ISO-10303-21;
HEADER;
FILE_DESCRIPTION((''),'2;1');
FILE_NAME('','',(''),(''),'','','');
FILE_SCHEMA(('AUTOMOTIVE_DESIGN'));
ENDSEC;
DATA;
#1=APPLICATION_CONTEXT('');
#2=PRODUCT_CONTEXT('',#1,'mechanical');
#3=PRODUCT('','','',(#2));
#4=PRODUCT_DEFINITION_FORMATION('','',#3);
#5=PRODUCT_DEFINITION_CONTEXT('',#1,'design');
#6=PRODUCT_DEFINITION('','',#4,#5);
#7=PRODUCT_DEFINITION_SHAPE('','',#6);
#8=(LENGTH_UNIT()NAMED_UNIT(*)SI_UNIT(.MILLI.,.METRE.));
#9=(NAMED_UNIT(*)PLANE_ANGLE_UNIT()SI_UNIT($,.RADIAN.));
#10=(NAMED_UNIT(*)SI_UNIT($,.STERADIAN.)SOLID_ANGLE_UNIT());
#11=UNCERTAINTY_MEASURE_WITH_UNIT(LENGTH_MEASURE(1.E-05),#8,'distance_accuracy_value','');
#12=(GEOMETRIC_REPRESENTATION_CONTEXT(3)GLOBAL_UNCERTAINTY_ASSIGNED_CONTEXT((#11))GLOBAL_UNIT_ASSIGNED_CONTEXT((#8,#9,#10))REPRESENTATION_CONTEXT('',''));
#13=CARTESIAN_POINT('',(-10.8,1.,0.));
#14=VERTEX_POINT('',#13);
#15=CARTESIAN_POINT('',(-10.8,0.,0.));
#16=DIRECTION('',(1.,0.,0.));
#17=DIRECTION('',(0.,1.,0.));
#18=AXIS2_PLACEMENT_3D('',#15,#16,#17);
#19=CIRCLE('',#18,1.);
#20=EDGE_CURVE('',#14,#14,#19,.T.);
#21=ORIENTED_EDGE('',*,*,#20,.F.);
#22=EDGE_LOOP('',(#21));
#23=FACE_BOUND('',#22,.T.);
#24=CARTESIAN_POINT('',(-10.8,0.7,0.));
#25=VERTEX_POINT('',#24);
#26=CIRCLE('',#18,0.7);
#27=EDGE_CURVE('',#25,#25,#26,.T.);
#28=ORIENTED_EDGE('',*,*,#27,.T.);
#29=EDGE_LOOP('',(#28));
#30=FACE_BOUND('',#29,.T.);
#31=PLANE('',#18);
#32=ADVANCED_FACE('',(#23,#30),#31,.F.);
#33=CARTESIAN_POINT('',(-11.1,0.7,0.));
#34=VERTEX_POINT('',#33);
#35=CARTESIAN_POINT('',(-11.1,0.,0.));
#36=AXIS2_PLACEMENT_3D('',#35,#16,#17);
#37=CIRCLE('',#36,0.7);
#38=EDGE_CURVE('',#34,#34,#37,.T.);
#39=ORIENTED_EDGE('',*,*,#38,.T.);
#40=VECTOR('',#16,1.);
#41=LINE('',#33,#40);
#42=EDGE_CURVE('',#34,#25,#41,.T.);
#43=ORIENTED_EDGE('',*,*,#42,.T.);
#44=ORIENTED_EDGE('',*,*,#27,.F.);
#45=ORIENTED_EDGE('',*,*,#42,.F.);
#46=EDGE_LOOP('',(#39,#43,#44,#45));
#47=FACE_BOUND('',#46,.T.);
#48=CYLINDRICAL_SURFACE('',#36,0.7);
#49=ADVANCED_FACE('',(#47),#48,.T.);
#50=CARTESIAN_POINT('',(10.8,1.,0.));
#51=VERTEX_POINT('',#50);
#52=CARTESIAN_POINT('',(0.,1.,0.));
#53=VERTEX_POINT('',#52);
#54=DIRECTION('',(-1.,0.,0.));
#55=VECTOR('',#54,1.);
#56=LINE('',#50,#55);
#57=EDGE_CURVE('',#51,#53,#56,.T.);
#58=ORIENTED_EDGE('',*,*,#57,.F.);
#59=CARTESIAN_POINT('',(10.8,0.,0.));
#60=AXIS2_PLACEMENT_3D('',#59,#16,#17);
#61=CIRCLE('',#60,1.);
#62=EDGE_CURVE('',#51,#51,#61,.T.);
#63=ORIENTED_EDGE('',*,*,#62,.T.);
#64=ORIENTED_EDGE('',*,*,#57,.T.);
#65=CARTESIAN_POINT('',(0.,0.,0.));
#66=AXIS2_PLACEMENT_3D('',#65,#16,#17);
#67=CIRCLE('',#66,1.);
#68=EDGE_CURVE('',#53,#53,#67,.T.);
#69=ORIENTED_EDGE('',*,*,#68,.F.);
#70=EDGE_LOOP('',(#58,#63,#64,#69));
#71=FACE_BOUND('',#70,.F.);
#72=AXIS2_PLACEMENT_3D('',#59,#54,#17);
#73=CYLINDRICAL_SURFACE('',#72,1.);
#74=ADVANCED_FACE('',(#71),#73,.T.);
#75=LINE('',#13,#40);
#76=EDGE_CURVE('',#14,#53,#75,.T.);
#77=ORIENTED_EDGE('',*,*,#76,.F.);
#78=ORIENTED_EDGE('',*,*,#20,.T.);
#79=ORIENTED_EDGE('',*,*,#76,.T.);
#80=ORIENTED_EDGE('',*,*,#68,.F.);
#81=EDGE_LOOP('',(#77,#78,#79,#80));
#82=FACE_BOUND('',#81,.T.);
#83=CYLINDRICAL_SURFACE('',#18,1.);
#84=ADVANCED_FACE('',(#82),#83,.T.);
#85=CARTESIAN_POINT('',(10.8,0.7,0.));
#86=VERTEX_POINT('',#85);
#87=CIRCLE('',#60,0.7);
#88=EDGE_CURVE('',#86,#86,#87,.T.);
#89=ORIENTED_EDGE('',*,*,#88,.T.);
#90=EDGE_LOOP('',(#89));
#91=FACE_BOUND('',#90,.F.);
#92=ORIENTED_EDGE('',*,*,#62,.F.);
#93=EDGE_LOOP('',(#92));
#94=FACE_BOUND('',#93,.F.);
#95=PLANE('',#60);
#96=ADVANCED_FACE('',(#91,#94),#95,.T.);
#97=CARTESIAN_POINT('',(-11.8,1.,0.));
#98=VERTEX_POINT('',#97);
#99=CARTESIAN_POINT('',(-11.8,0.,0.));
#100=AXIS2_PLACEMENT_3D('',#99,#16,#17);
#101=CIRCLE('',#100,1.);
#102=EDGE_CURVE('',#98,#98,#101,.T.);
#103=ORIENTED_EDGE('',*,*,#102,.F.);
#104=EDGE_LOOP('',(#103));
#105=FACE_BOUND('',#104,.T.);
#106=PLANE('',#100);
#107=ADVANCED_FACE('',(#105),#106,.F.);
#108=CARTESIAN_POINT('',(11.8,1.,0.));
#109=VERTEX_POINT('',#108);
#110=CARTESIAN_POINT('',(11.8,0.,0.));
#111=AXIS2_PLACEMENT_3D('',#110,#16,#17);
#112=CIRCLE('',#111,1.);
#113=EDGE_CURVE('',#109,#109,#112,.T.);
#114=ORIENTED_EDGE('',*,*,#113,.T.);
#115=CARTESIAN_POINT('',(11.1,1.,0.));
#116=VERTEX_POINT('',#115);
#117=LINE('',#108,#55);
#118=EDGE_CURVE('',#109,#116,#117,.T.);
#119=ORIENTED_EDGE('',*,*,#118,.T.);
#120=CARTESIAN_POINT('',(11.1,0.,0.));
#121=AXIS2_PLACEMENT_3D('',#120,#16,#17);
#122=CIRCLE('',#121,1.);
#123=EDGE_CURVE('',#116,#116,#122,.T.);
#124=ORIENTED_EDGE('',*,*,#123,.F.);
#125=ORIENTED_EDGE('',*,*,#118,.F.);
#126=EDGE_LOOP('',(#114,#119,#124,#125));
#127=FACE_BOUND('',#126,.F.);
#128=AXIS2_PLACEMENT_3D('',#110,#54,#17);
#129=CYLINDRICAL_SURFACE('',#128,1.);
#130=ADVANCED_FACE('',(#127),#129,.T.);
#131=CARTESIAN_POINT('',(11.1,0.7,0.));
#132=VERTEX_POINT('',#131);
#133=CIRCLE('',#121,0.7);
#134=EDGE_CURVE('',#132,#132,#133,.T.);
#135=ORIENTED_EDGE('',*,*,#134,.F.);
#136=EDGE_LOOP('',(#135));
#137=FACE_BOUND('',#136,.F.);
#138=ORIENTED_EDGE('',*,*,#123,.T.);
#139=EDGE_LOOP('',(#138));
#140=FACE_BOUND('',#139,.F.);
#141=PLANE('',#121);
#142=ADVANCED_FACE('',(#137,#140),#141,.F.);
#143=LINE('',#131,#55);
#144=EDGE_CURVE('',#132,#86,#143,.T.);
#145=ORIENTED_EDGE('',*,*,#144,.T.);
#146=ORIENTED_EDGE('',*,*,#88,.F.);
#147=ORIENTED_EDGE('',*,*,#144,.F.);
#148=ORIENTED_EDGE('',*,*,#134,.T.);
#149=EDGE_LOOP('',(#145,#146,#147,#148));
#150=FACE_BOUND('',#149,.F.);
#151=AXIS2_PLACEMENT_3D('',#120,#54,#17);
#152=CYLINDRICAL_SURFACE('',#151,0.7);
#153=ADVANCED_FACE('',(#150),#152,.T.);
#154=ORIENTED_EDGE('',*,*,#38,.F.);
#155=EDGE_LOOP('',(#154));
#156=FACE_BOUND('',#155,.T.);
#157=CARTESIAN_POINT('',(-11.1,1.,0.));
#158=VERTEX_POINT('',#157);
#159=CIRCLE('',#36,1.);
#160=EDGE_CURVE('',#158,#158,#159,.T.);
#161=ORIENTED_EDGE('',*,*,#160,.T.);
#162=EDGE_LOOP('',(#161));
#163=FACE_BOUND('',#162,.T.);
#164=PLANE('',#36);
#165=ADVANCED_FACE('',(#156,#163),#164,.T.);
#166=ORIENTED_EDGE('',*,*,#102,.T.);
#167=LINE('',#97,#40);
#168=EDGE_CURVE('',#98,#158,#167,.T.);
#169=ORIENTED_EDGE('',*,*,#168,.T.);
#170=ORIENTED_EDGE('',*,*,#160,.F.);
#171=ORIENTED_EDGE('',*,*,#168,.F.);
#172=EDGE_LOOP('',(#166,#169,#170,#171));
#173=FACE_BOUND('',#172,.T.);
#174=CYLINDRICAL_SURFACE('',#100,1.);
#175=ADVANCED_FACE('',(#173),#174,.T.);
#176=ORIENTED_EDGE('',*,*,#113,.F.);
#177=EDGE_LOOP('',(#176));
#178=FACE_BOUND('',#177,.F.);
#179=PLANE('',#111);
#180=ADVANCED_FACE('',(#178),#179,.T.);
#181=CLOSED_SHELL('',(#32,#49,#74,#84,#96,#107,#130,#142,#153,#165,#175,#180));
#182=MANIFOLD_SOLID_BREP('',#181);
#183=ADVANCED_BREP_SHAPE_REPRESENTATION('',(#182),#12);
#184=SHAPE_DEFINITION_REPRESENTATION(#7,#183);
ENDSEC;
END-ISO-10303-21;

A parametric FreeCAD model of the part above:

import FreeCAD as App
import Part
import Sketcher
from FreeCAD import Vector
Q = App.Units.Quantity


def add_polygon(sketch, points):
    """Adds a closed chain of lines whose ends are joined by coincident constraints."""
    first, n = sketch.GeometryCount, len(points)
    for a, b in zip(points, points[1:] + points[:1]):
        sketch.addGeometry(Part.LineSegment(App.Vector(*a, 0), App.Vector(*b, 0)), False)
    for i in range(n):
        sketch.addConstraint(Sketcher.Constraint("Coincident", first + i, 2, first + (i + 1) % n, 1))

doc = App.newDocument("Part")
body = doc.addObject("PartDesign::Body", "Body")

# Sketch on XY plane
sketch1 = doc.addObject("Sketcher::SketchObject", "Sketch")
body.addObject(sketch1)
sketch1.AttachmentSupport = (doc.XY_Plane, [""])
sketch1.MapMode = "FlatFace"
add_polygon(sketch1, [(-11.8, 1), (-11.8, 0), (11.8, 0), (11.8, 1), (11.1, 1), (11.1, 0.7), (10.8, 0.7), (10.8, 1), (-10.8, 1), (-10.8, 0.7), (-11.1, 0.7), (-11.1, 1)])  # lines 0-11
sketch1.addConstraint([
    Sketcher.Constraint("Vertical", 0),
    Sketcher.Constraint("Horizontal", 1),
    Sketcher.Constraint("Vertical", 2),
    Sketcher.Constraint("Horizontal", 3),
    Sketcher.Constraint("Vertical", 4),
    Sketcher.Constraint("Horizontal", 5),
    Sketcher.Constraint("Vertical", 6),
    Sketcher.Constraint("Horizontal", 7),
    Sketcher.Constraint("Vertical", 8),
    Sketcher.Constraint("Horizontal", 9),
    Sketcher.Constraint("Vertical", 10),
    Sketcher.Constraint("Horizontal", 11),
    Sketcher.Constraint("Symmetric", 0, 2, 1, 2, -1, 1),
    Sketcher.Constraint("Symmetric", 5, 2, 8, 2, -2),
    Sketcher.Constraint("Symmetric", 3, 2, 10, 2, -2),
    Sketcher.Constraint("Horizontal", 3, 2, 6, 2),
    Sketcher.Constraint("Equal", 9, 4),
    Sketcher.Constraint("DistanceX", 1, 1, 1, 2, Q("23.6 mm")),
    Sketcher.Constraint("DistanceX", 5, 2, 5, 1, Q("0.3 mm")),
    Sketcher.Constraint("DistanceX", 7, 2, 7, 1, Q("21.6 mm")),
    Sketcher.Constraint("DistanceY", 0, 2, 0, 1, Q("1 mm")),
])
revolution = doc.addObject("PartDesign::Revolution", "Revolution")
body.addObject(revolution)
revolution.Profile = sketch1
revolution.ReferenceAxis = (sketch1, ["H_Axis"])
revolution.Angle = 360

doc.recompute()
